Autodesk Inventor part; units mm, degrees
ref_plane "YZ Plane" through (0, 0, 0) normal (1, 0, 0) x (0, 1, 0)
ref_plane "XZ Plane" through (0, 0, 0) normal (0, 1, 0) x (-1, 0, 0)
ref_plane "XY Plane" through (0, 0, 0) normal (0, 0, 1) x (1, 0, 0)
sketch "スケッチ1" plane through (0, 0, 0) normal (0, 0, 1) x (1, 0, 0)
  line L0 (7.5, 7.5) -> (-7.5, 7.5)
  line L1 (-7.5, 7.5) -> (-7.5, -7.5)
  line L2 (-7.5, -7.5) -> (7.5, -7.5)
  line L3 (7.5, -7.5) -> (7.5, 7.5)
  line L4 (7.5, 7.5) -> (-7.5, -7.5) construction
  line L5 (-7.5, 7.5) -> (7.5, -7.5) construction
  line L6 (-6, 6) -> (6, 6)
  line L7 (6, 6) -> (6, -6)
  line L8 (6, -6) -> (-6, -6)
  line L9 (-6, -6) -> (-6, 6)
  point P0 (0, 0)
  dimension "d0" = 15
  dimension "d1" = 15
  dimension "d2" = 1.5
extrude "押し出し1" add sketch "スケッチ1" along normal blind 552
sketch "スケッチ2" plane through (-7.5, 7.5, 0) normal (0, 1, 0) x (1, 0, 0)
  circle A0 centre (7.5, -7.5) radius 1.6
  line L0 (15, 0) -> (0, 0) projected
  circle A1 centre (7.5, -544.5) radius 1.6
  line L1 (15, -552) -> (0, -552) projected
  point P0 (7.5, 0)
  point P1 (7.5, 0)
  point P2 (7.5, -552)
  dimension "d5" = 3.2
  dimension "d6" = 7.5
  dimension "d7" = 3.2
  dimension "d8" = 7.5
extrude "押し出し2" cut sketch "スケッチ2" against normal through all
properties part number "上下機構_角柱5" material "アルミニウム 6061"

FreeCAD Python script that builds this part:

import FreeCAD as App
import Part
import Sketcher
from FreeCAD import Vector
Q = App.Units.Quantity


def add_polygon(sketch, points):
    """Adds a closed chain of lines whose ends are joined by coincident constraints."""
    first, n = sketch.GeometryCount, len(points)
    for a, b in zip(points, points[1:] + points[:1]):
        sketch.addGeometry(Part.LineSegment(App.Vector(*a, 0), App.Vector(*b, 0)), False)
    for i in range(n):
        sketch.addConstraint(Sketcher.Constraint("Coincident", first + i, 2, first + (i + 1) % n, 1))

doc = App.newDocument("Part")
body = doc.addObject("PartDesign::Body", "Body")

# Sketch on XY plane
sketch1 = body.newObject("Sketcher::SketchObject", "Sketch")
sketch1.AttachmentSupport = (doc.getObject("XY_Plane"), [""])
sketch1.MapMode = "FlatFace"
add_polygon(sketch1, [(7.5, -7.5), (7.5, 7.5), (-7.5, 7.5), (-7.5, -7.5)])  # lines 0-3
add_polygon(sketch1, [(-6, -6), (-6, 6), (6, 6), (6, -6)])  # lines 4-7
sketch1.addConstraint(Sketcher.Constraint("Vertical", 0))
sketch1.addConstraint(Sketcher.Constraint("Horizontal", 1))
sketch1.addConstraint(Sketcher.Constraint("Vertical", 2))
sketch1.addConstraint(Sketcher.Constraint("Horizontal", 3))
sketch1.addConstraint(Sketcher.Constraint("Vertical", 4))
sketch1.addConstraint(Sketcher.Constraint("Horizontal", 5))
sketch1.addConstraint(Sketcher.Constraint("Vertical", 6))
sketch1.addConstraint(Sketcher.Constraint("Horizontal", 7))
sketch1.addConstraint(Sketcher.Constraint("Symmetric", 0, 2, 2, 2, -1, 1))
sketch1.addConstraint(Sketcher.Constraint("Symmetric", 4, 2, 6, 2, -1, 1))
sketch1.addConstraint(Sketcher.Constraint("Equal", 3, 0))
sketch1.addConstraint(Sketcher.Constraint("Equal", 7, 4))
sketch1.addConstraint(Sketcher.Constraint("DistanceX", 1, 2, 1, 1, Q("15 mm")))
sketch1.addConstraint(Sketcher.Constraint("DistanceX", 1, 2, 4, 2, Q("1.5 mm")))
pad1 = body.newObject("PartDesign::Pad", "Pad")
pad1.Profile = sketch1
pad1.Length = 552

# Sketch on XZ plane
sketch2 = body.newObject("Sketcher::SketchObject", "Sketch001")
sketch2.AttachmentSupport = (doc.getObject("XZ_Plane"), [""])
sketch2.MapMode = "FlatFace"
sketch2.AttachmentOffset = App.Placement(Vector(0, 0, -7.5), App.Rotation())
sketch2.addGeometry(Part.Circle(Vector(0, 7.5, 0), Vector(0, 0, 1), 1.6), False)
sketch2.addGeometry(Part.Circle(Vector(0, 544.5, 0), Vector(0, 0, 1), 1.6), False)
sketch2.addConstraint(Sketcher.Constraint("Equal", 0, 1))
sketch2.addConstraint(Sketcher.Constraint("PointOnObject", 0, 3, -2))
sketch2.addConstraint(Sketcher.Constraint("PointOnObject", 1, 3, -2))
sketch2.addConstraint(Sketcher.Constraint("Diameter", 0, Q("3.2 mm")))
sketch2.addConstraint(Sketcher.Constraint("DistanceY", -1, 1, 0, 3, Q("7.5 mm")))
sketch2.addConstraint(Sketcher.Constraint("DistanceY", 0, 3, 1, 3, Q("537 mm")))
pocket1 = body.newObject("PartDesign::Pocket", "Pocket")
pocket1.Profile = sketch2
pocket1.Type = "ThroughAll"
pocket1.Reversed = True

doc.recompute()
